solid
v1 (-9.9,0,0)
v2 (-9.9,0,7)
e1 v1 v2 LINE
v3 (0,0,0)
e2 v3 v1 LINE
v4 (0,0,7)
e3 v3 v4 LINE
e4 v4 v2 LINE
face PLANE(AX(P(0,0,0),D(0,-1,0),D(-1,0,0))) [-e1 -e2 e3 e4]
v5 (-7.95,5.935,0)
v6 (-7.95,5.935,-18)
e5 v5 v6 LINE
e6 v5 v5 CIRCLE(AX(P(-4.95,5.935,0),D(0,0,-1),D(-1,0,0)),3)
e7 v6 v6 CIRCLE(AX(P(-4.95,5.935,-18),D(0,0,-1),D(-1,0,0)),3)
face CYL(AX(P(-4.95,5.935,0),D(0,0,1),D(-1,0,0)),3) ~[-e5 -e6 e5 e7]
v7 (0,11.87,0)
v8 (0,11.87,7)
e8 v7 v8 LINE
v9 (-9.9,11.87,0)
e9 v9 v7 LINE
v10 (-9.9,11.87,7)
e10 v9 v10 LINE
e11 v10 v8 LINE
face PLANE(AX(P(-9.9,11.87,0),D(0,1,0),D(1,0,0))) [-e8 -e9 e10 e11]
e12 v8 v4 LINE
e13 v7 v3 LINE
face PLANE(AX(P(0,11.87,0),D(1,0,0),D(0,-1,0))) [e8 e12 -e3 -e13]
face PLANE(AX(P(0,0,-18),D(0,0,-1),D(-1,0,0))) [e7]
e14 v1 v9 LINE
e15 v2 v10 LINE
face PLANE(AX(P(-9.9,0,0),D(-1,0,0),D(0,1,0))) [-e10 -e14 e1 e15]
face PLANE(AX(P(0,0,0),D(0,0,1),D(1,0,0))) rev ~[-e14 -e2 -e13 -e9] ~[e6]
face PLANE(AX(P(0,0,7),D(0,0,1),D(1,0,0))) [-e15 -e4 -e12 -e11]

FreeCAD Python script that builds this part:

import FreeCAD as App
import Part
import Sketcher
from FreeCAD import Vector

doc = App.newDocument("Part")
body = doc.addObject("PartDesign::Body", "Body")

# Sketch on XY plane
sketch1 = body.newObject("Sketcher::SketchObject", "Sketch")
sketch1.AttachmentSupport = (doc.getObject("XY_Plane"), [""])
sketch1.MapMode = "FlatFace"
sketch1.addGeometry(Part.LineSegment(Vector(-10, 0, 0), Vector(0, 0, 0)), False)
sketch1.addGeometry(Part.LineSegment(Vector(0, 0, 0), Vector(0, 12, 0)), False)
sketch1.addGeometry(Part.LineSegment(Vector(0, 12, 0), Vector(-10, 12, 0)), False)
sketch1.addGeometry(Part.LineSegment(Vector(-10, 12, 0), Vector(-10, 0, 0)), False)
sketch1.addConstraint(Sketcher.Constraint("Coincident", 0, 2, 1, 1))
sketch1.addConstraint(Sketcher.Constraint("Coincident", 1, 2, 2, 1))
sketch1.addConstraint(Sketcher.Constraint("Coincident", 2, 2, 3, 1))
sketch1.addConstraint(Sketcher.Constraint("Coincident", 3, 2, 0, 1))
sketch1.addConstraint(Sketcher.Constraint("Horizontal", 0))
sketch1.addConstraint(Sketcher.Constraint("Vertical", 1))
sketch1.addConstraint(Sketcher.Constraint("Horizontal", 2))
sketch1.addConstraint(Sketcher.Constraint("Vertical", 3))
sketch1.addConstraint(Sketcher.Constraint("Coincident", 0, 2, -1, 1))
sketch1.addConstraint(Sketcher.Constraint("DistanceX", 0, 1, 0, 2, 9.9))
sketch1.addConstraint(Sketcher.Constraint("DistanceY", 1, 1, 1, 2, 11.87))
pad1 = body.newObject("PartDesign::Pad", "Pad")
pad1.Profile = sketch1
pad1.Length = 7

# Sketch on XY plane
sketch2 = body.newObject("Sketcher::SketchObject", "Sketch001")
sketch2.AttachmentSupport = (doc.getObject("XY_Plane"), [""])
sketch2.MapMode = "FlatFace"
sketch2.addGeometry(Part.Circle(Vector(-5, 5.9, 0), Vector(0, 0, 1), 3), False)
sketch2.addConstraint(Sketcher.Constraint("Diameter", 0, 6.0))
sketch2.addConstraint(Sketcher.Constraint("DistanceX", 0, 3, -1, 1, 4.95))
sketch2.addConstraint(Sketcher.Constraint("DistanceY", -1, 1, 0, 3, 5.935))
pad2 = body.newObject("PartDesign::Pad", "Pad001")
pad2.Profile = sketch2
pad2.Length = 18
pad2.Reversed = True

doc.recompute()
